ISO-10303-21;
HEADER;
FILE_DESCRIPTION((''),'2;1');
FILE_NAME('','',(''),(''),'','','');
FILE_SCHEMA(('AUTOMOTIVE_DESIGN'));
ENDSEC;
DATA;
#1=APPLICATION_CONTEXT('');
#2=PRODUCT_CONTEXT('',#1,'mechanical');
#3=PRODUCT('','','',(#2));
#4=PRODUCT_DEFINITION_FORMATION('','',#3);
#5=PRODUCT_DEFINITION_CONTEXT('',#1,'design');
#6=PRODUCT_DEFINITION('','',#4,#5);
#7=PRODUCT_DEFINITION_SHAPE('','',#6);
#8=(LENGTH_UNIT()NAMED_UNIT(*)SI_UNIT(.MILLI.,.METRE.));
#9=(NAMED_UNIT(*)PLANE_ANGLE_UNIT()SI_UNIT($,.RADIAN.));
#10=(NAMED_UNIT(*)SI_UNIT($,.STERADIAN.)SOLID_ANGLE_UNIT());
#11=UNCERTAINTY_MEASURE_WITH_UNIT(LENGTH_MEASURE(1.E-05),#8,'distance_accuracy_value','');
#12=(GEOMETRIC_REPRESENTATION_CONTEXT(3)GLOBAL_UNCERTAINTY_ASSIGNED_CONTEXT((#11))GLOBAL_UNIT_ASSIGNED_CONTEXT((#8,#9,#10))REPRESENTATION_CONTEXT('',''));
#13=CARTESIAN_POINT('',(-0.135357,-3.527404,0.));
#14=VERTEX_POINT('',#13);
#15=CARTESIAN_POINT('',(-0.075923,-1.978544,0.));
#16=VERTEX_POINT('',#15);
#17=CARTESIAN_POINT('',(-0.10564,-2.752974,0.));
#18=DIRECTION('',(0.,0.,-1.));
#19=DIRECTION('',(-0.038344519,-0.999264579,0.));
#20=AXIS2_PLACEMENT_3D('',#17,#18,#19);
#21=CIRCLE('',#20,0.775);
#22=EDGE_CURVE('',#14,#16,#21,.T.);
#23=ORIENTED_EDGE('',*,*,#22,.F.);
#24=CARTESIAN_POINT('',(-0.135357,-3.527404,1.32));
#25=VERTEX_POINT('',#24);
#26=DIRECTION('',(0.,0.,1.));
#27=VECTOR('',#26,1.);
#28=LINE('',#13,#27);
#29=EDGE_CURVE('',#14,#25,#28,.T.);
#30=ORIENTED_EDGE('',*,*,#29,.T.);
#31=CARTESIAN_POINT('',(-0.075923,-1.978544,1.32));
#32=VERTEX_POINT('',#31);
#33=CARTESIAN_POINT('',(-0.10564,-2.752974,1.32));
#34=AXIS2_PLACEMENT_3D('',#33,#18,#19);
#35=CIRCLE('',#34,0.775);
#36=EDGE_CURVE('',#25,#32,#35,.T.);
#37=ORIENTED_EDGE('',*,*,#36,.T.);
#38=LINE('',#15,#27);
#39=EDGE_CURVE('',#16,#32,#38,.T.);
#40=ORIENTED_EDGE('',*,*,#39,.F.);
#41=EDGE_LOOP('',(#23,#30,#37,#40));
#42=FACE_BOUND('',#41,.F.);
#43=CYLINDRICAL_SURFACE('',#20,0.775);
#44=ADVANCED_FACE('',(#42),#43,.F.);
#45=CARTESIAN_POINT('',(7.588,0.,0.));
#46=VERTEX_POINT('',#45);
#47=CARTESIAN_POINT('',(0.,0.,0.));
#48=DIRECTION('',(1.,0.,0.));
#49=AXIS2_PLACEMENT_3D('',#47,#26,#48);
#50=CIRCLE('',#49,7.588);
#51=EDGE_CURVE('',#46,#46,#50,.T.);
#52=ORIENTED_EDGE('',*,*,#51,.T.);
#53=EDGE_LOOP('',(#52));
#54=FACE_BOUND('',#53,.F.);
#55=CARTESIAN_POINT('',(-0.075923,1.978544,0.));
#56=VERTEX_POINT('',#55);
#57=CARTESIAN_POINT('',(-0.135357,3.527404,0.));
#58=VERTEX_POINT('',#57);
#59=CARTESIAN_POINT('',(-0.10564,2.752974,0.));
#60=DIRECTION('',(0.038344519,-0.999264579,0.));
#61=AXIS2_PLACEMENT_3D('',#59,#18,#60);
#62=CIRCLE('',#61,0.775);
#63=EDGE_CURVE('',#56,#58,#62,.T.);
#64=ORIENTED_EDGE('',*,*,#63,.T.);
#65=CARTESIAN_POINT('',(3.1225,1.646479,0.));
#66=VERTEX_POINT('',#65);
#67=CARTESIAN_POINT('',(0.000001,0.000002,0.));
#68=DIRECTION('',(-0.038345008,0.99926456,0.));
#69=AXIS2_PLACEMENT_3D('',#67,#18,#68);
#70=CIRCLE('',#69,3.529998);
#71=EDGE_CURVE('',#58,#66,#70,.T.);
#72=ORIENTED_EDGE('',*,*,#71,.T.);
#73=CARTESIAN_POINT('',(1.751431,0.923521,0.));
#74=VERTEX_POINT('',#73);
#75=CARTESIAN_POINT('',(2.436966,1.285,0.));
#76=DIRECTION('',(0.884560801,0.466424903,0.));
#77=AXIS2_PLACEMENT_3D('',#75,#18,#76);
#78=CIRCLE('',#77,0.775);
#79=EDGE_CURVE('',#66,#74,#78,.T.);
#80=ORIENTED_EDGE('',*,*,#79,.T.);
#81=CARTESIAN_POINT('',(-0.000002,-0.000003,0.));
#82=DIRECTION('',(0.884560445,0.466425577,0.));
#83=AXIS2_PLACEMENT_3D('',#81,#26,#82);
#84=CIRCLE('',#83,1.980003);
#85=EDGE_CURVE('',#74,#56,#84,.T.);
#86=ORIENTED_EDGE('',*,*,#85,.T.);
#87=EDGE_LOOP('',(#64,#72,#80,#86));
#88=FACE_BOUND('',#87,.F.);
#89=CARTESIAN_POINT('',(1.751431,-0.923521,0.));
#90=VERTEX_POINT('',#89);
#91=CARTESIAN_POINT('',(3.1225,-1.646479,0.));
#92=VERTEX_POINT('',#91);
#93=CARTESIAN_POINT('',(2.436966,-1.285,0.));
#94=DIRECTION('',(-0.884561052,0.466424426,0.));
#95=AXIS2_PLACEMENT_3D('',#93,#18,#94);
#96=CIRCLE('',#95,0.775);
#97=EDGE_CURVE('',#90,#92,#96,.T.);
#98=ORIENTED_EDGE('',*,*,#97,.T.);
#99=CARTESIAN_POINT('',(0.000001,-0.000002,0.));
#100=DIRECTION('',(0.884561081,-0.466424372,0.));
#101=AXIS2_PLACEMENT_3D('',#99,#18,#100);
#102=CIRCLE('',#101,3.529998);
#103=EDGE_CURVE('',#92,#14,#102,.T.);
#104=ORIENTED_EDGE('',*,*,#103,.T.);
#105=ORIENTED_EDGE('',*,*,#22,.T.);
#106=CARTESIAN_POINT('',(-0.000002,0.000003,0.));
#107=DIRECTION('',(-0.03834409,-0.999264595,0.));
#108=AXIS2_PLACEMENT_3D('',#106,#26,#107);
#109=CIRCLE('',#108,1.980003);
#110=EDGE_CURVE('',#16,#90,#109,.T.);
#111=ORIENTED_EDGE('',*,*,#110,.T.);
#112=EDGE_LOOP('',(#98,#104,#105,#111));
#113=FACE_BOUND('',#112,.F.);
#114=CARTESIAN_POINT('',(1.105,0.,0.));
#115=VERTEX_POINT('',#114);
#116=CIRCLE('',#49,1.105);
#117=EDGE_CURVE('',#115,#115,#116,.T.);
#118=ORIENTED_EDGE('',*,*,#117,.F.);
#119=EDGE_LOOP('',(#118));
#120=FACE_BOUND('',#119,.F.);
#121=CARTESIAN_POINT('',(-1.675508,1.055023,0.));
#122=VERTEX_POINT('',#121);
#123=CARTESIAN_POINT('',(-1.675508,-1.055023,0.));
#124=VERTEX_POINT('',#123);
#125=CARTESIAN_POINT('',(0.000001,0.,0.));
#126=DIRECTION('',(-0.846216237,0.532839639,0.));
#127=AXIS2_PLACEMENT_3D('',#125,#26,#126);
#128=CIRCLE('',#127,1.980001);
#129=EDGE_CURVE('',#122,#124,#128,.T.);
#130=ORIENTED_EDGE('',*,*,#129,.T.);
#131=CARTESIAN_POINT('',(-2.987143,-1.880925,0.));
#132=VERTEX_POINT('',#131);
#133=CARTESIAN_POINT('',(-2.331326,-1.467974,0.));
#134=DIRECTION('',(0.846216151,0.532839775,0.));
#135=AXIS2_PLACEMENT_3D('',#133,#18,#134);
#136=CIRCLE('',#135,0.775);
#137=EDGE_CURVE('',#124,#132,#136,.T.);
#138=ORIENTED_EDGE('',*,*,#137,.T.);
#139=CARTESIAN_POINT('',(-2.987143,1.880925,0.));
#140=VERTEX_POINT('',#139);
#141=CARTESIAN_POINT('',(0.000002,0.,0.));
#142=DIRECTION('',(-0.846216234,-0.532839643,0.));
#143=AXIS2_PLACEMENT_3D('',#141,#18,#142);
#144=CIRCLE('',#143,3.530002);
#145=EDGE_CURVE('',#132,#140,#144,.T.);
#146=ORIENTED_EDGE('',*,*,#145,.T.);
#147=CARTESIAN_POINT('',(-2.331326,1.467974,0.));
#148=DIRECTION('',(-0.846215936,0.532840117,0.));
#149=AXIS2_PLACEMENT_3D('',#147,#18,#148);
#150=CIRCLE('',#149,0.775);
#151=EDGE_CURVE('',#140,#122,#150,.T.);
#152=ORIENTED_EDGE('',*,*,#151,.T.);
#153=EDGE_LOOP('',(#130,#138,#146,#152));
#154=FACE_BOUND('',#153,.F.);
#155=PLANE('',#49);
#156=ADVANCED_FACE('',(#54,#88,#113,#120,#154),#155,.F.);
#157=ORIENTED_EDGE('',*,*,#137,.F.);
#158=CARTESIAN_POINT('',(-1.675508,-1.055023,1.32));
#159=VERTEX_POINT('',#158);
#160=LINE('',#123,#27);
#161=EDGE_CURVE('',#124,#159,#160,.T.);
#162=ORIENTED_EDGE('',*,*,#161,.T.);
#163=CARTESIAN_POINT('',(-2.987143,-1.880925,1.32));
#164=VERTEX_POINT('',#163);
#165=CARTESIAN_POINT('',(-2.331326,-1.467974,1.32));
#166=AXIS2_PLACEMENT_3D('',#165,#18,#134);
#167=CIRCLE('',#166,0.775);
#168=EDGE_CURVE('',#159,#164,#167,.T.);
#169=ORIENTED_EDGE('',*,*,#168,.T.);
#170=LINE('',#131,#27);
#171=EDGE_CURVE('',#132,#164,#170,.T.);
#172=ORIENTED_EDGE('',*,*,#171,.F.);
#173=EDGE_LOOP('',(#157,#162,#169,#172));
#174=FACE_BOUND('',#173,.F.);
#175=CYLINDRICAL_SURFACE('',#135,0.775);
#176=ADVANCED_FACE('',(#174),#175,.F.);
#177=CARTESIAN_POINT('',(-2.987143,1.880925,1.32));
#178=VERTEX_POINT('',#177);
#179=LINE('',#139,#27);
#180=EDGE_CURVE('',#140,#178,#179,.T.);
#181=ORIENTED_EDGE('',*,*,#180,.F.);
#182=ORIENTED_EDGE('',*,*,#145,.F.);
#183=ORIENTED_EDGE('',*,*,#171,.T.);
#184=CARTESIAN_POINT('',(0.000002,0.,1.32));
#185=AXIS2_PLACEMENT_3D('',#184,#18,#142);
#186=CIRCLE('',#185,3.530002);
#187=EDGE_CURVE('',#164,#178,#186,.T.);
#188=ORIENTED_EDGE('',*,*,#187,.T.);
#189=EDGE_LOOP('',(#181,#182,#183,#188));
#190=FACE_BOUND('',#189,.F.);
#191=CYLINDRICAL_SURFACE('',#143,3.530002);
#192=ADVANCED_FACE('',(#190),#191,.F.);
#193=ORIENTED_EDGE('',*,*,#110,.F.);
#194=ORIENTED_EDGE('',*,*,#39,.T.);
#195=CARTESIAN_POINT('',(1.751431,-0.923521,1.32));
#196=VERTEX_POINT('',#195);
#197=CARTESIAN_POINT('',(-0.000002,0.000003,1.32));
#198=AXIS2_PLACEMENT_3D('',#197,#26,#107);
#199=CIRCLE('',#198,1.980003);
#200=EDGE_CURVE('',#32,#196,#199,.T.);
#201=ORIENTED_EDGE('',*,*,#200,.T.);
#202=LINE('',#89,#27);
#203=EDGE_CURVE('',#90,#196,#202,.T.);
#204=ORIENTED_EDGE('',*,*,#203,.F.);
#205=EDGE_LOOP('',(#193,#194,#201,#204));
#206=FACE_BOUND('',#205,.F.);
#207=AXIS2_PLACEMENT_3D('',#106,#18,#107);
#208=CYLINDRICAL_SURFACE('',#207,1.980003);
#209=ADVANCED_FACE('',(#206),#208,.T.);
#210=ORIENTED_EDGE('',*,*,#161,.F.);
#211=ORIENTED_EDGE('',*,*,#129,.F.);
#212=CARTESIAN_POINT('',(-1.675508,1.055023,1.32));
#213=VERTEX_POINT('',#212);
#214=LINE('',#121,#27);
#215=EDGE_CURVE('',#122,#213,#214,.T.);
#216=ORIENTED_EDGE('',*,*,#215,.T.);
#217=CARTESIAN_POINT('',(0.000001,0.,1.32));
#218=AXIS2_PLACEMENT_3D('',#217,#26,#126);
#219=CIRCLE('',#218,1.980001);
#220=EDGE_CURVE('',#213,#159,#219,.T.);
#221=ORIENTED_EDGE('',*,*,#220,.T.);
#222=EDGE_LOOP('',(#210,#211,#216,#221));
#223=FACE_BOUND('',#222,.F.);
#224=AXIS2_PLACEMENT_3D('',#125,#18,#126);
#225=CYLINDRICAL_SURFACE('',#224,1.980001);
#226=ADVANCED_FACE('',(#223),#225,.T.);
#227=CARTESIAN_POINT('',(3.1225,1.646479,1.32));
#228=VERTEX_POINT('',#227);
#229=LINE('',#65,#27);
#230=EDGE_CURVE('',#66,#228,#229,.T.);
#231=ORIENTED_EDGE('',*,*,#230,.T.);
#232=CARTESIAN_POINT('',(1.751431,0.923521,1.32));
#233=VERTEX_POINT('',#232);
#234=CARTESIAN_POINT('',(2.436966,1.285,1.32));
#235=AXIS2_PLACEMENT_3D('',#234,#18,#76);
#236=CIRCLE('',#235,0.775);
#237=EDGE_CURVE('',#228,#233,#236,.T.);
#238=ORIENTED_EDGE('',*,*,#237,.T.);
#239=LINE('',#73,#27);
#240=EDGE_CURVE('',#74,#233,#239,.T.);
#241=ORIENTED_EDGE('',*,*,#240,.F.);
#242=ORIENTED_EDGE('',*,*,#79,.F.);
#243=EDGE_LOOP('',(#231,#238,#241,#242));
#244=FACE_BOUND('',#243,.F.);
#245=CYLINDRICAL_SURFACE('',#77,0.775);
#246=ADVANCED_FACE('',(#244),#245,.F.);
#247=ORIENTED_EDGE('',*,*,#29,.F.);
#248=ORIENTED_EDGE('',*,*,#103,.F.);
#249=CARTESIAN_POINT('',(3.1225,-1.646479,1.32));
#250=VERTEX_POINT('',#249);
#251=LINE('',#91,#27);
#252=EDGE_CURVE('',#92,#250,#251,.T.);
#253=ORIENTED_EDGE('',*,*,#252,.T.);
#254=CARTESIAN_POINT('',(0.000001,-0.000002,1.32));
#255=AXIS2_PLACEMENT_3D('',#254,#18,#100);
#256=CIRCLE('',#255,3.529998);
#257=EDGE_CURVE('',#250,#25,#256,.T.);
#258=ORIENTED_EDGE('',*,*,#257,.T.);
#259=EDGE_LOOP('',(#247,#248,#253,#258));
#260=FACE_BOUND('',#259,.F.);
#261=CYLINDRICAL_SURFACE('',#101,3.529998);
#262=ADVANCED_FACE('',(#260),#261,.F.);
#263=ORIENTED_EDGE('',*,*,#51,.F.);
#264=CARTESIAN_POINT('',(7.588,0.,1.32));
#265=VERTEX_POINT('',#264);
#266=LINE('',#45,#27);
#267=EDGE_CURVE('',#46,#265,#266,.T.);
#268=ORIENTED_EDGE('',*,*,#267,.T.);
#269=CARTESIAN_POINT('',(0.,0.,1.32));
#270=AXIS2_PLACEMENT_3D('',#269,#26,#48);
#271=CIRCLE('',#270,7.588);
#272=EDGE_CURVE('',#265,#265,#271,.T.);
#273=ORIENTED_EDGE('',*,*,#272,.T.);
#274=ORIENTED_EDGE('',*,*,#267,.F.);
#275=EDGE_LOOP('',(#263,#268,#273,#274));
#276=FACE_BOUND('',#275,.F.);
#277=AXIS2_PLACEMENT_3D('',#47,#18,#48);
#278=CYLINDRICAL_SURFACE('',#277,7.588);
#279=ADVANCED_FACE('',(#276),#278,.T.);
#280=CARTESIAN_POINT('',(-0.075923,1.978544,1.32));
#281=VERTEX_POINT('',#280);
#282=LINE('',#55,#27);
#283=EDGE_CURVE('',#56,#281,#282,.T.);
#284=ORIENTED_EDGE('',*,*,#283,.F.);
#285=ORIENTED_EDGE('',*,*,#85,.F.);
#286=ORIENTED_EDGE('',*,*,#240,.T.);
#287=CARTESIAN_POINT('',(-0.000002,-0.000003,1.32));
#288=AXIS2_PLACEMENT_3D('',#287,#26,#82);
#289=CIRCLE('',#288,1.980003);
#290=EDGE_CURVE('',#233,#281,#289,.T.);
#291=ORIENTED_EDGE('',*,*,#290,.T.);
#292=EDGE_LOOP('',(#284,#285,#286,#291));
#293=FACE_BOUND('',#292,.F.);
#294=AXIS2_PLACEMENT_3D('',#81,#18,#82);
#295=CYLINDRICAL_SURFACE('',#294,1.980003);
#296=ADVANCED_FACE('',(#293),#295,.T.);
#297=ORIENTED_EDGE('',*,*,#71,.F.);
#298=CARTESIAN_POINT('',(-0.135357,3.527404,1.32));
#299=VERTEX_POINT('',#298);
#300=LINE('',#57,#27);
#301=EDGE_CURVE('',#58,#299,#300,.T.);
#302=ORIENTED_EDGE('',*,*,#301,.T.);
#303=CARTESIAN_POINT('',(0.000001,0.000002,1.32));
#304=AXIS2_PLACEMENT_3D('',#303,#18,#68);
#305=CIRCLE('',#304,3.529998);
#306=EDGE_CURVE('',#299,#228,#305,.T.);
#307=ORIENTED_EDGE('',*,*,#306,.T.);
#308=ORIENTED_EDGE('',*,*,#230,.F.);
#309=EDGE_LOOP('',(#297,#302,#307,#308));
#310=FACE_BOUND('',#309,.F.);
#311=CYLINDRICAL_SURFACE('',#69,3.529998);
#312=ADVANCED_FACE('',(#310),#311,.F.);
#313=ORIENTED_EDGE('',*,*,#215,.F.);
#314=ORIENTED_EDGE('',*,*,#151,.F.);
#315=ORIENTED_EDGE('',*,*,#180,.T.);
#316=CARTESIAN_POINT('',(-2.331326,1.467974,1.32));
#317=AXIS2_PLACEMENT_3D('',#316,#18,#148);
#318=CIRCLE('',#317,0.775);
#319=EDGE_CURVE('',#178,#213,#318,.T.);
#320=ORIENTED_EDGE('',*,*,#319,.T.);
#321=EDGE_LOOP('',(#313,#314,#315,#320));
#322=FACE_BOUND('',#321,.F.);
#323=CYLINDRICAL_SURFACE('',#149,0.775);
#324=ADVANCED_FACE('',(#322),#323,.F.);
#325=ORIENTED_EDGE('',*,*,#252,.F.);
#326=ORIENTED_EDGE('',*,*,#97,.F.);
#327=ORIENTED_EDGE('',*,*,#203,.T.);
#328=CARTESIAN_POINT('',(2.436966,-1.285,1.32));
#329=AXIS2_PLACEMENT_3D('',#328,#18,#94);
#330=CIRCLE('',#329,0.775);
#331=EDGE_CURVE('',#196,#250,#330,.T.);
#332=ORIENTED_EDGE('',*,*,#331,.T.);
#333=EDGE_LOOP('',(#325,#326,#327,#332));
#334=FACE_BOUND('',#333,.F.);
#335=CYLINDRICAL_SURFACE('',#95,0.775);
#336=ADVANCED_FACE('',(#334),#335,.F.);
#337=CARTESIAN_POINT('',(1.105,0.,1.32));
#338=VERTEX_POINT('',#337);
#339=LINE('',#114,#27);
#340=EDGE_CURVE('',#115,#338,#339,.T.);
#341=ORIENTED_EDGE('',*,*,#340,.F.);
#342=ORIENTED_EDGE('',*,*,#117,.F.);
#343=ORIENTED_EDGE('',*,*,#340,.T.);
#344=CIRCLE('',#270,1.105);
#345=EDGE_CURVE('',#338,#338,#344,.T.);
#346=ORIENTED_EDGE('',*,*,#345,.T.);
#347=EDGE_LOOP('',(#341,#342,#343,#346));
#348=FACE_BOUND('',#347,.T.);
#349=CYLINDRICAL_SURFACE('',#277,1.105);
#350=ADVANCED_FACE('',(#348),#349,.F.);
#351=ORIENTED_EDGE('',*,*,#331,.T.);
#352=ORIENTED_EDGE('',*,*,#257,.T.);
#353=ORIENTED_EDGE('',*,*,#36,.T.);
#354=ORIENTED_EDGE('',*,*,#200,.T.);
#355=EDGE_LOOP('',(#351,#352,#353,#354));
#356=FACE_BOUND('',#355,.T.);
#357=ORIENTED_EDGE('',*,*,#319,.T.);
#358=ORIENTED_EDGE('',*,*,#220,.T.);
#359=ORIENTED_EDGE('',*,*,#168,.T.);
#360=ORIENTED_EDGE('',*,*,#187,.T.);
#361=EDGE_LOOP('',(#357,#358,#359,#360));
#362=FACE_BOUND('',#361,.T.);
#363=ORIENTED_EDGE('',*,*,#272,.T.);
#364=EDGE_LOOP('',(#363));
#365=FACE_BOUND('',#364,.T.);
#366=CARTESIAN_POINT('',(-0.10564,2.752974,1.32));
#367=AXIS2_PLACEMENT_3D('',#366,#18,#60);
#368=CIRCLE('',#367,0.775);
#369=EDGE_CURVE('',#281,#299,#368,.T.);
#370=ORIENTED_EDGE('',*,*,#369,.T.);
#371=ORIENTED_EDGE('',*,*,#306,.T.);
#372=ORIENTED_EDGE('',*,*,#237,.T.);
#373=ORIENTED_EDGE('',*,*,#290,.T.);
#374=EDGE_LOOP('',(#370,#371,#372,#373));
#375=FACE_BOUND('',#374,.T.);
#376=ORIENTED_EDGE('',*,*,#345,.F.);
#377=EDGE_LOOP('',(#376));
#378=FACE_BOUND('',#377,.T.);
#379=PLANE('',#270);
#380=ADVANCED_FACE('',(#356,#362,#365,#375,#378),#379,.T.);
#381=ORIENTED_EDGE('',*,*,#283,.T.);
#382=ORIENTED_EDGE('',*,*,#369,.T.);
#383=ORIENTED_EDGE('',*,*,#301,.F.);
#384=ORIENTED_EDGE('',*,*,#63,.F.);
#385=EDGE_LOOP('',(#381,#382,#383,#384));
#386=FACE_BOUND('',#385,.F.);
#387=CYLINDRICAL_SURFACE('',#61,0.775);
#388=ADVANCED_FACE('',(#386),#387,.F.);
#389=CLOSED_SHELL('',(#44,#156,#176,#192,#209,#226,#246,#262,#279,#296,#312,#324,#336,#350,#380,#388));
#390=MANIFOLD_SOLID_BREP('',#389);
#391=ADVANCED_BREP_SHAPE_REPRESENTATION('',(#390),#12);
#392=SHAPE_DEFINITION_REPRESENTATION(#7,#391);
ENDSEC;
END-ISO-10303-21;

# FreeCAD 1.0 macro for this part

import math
import FreeCAD as App
import Part
import Sketcher

V = App.Vector

doc = App.newDocument("Part")
body = doc.addObject("PartDesign::Body", "Body")

# Sketch on XY plane
sketch1 = body.newObject("Sketcher::SketchObject", "Sketch")
sketch1.AttachmentSupport = (doc.getObject("XY_Plane"), [""])
sketch1.MapMode = "FlatFace"
sketch1.addGeometry(Part.Circle(V(0, 0, 0), V(0, 0, 1), 7.588), False)
sketch1.addGeometry(Part.ArcOfCircle(Part.Circle(V(0.000002, 0, 0), V(0, 0, 1), 3.530002), math.radians(147.80248), math.radians(212.19752)), False)
sketch1.addGeometry(Part.ArcOfCircle(Part.Circle(V(-2.331326, 1.467974, 0), V(0, 0, 1), 0.775), math.radians(-32.197529), math.radians(147.802448)), False)
sketch1.addGeometry(Part.ArcOfCircle(Part.Circle(V(0.000001, 0, 0), V(0, 0, 1), 1.980001), math.radians(147.802481), math.radians(212.197519)), False)
sketch1.addGeometry(Part.ArcOfCircle(Part.Circle(V(-2.331326, -1.467974, 0), V(0, 0, 1), 0.775), math.radians(-147.802448), math.radians(32.197529)), False)
sketch1.addGeometry(Part.ArcOfCircle(Part.Circle(V(-0.10564, -2.752974, 0), V(0, 0, 1), 0.775), math.radians(87.802482), math.radians(267.802482)), False)
sketch1.addGeometry(Part.ArcOfCircle(Part.Circle(V(-0.000002, 0.000003, 0), V(0, 0, 1), 1.980003), math.radians(-92.197493), math.radians(-27.802522)), False)
sketch1.addGeometry(Part.ArcOfCircle(Part.Circle(V(2.436966, -1.285, 0), V(0, 0, 1), 0.775), math.radians(-27.802478), math.radians(152.197553)), False)
sketch1.addGeometry(Part.ArcOfCircle(Part.Circle(V(0.000001, -0.000002, 0), V(0, 0, 1), 3.529998), math.radians(-92.197546), math.radians(-27.802444)), False)
sketch1.addGeometry(Part.Circle(V(0, 0, 0), V(0, 0, 1), 1.105), False)
sketch1.addGeometry(Part.ArcOfCircle(Part.Circle(V(0.000001, 0.000002, 0), V(0, 0, 1), 3.529998), math.radians(27.802444), math.radians(92.197546)), False)
sketch1.addGeometry(Part.ArcOfCircle(Part.Circle(V(2.436966, 1.285, 0), V(0, 0, 1), 0.775), math.radians(-152.197553), math.radians(27.802478)), False)
sketch1.addGeometry(Part.ArcOfCircle(Part.Circle(V(-0.000002, -0.000003, 0), V(0, 0, 1), 1.980003), math.radians(27.802522), math.radians(92.197493)), False)
sketch1.addGeometry(Part.ArcOfCircle(Part.Circle(V(-0.10564, 2.752974, 0), V(0, 0, 1), 0.775), math.radians(92.197518), math.radians(272.197518)), False)
sketch1.addConstraint(Sketcher.Constraint("Coincident", 1, 1, 2, 2))
sketch1.addConstraint(Sketcher.Constraint("Coincident", 2, 1, 3, 1))
sketch1.addConstraint(Sketcher.Constraint("Coincident", 3, 2, 4, 2))
sketch1.addConstraint(Sketcher.Constraint("Coincident", 4, 1, 1, 2))
sketch1.addConstraint(Sketcher.Constraint("Coincident", 5, 1, 6, 1))
sketch1.addConstraint(Sketcher.Constraint("Coincident", 6, 2, 7, 2))
sketch1.addConstraint(Sketcher.Constraint("Coincident", 7, 1, 8, 2))
sketch1.addConstraint(Sketcher.Constraint("Coincident", 8, 1, 5, 2))
sketch1.addConstraint(Sketcher.Constraint("Coincident", 10, 1, 11, 2))
sketch1.addConstraint(Sketcher.Constraint("Coincident", 11, 1, 12, 1))
sketch1.addConstraint(Sketcher.Constraint("Coincident", 12, 2, 13, 2))
sketch1.addConstraint(Sketcher.Constraint("Coincident", 13, 1, 10, 2))
sketch1.addConstraint(Sketcher.Constraint("Coincident", 0, 3, -1, 1))
sketch1.addConstraint(Sketcher.Constraint("Coincident", 1, 3, -1, 1))
sketch1.addConstraint(Sketcher.Constraint("Coincident", 3, 3, -1, 1))
sketch1.addConstraint(Sketcher.Constraint("Coincident", 6, 3, -1, 1))
sketch1.addConstraint(Sketcher.Constraint("Coincident", 8, 3, -1, 1))
sketch1.addConstraint(Sketcher.Constraint("Coincident", 9, 3, -1, 1))
sketch1.addConstraint(Sketcher.Constraint("Coincident", 10, 3, -1, 1))
sketch1.addConstraint(Sketcher.Constraint("Coincident", 12, 3, -1, 1))
sketch1.addConstraint(Sketcher.Constraint("Diameter", 9, 2.21))
sketch1.addConstraint(Sketcher.Constraint("Radius", 1, 3.530002))
sketch1.addConstraint(Sketcher.Constraint("Radius", 3, 1.980001))
sketch1.addConstraint(Sketcher.Constraint("Radius", 8, 3.529998))
sketch1.addConstraint(Sketcher.Constraint("Radius", 10, 3.529998))
sketch1.addConstraint(Sketcher.Constraint("Diameter", 0, 15.176))
sketch1.addConstraint(Sketcher.Constraint("Radius", 5, 0.775))
sketch1.addConstraint(Sketcher.Constraint("Radius", 11, 0.775))
sketch1.addConstraint(Sketcher.Constraint("DistanceY", 7, 3, 11, 3, 2.57))
sketch1.addConstraint(Sketcher.Constraint("DistanceY", 6, 2, 10, 1, 2.57))
sketch1.addConstraint(Sketcher.Constraint("DistanceY", 7, 3, -1, 1, 1.285))
sketch1.addConstraint(Sketcher.Constraint("DistanceY", 5, 3, 4, 3, 1.285))
sketch1.addConstraint(Sketcher.Constraint("DistanceY", 2, 3, 13, 3, 1.285))
sketch1.addConstraint(Sketcher.Constraint("DistanceX", -1, 1, 7, 1, 3.1225))
sketch1.addConstraint(Sketcher.Constraint("DistanceX", -1, 1, 10, 1, 3.1225))
sketch1.addConstraint(Sketcher.Constraint("DistanceY", 4, 3, 1, 1, 3.348899))
sketch1.addConstraint(Sketcher.Constraint("DistanceY", 4, 1, 3, 2, 0.825902))
sketch1.addConstraint(Sketcher.Constraint("DistanceY", 4, 1, 2, 3, 3.348899))
sketch1.addConstraint(Sketcher.Constraint("DistanceX", 5, 3, -1, 1, 0.10564))
sketch1.addConstraint(Sketcher.Constraint("DistanceX", 13, 3, -1, 1, 0.10564))
sketch1.addConstraint(Sketcher.Constraint("DistanceX", -1, 1, 11, 1, 1.751431))
sketch1.addConstraint(Sketcher.Constraint("DistanceY", 2, 1, 2, 3, 0.412951))
sketch1.addConstraint(Sketcher.Constraint("DistanceY", 5, 3, 5, 1, 0.77443))
sketch1.addConstraint(Sketcher.Constraint("DistanceY", 8, 1, 5, 3, 0.77443))
sketch1.addConstraint(Sketcher.Constraint("DistanceY", 12, 2, 13, 3, 0.77443))
sketch1.addConstraint(Sketcher.Constraint("DistanceY", 13, 3, 13, 1, 0.77443))
pad1 = body.newObject("PartDesign::Pad", "Pad")
pad1.Profile = sketch1
pad1.Length = 1.32

doc.recompute()
